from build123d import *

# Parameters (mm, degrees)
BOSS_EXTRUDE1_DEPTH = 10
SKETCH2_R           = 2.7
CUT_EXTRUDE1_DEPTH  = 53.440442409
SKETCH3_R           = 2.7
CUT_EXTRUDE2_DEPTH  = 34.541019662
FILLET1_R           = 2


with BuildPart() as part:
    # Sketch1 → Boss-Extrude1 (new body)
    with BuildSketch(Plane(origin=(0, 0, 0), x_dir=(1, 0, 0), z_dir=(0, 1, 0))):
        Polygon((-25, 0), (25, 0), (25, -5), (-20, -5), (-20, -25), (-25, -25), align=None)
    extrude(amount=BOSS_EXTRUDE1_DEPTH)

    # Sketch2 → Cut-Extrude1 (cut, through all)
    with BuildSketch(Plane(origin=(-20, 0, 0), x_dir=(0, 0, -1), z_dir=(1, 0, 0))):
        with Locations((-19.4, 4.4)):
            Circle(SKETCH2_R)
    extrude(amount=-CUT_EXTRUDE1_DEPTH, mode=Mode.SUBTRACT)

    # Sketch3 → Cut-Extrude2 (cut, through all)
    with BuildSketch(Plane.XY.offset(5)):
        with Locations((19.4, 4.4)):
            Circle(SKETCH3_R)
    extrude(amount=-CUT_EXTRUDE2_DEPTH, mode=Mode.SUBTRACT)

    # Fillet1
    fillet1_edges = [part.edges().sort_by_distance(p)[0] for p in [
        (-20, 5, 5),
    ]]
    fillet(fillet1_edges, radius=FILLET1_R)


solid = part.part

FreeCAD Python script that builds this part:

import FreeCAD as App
import Part
import Sketcher

V = App.Vector
Q = App.Units.Quantity


def edges_at(feature, points):
    """Names of the edges that pass closest to the given points."""
    edges = feature.Shape.Edges
    near = lambda p: min(range(len(edges)), key=lambda i: edges[i].distToShape(Part.Vertex(*p))[0])
    return sorted({f"Edge{near(p) + 1}" for p in points})

doc = App.newDocument("Part")
body = doc.addObject("PartDesign::Body", "Body")

# Sketch on XZ plane
sketch1 = body.newObject("Sketcher::SketchObject", "Sketch")
sketch1.AttachmentSupport = (doc.getObject("XZ_Plane"), [""])
sketch1.MapMode = "FlatFace"
sketch1.addGeometry(Part.LineSegment(V(25, 0, 0), V(-25, 0, 0)), False)
sketch1.addGeometry(Part.LineSegment(V(-25, 0, 0), V(-25, 25, 0)), False)
sketch1.addGeometry(Part.LineSegment(V(-25, 25, 0), V(-20, 25, 0)), False)
sketch1.addGeometry(Part.LineSegment(V(-20, 25, 0), V(-20, 5, 0)), False)
sketch1.addGeometry(Part.LineSegment(V(-20, 5, 0), V(25, 5, 0)), False)
sketch1.addGeometry(Part.LineSegment(V(25, 5, 0), V(25, 0, 0)), False)
sketch1.addConstraint(Sketcher.Constraint("Coincident", 0, 2, 1, 1))
sketch1.addConstraint(Sketcher.Constraint("Coincident", 1, 2, 2, 1))
sketch1.addConstraint(Sketcher.Constraint("Coincident", 2, 2, 3, 1))
sketch1.addConstraint(Sketcher.Constraint("Coincident", 3, 2, 4, 1))
sketch1.addConstraint(Sketcher.Constraint("Coincident", 4, 2, 5, 1))
sketch1.addConstraint(Sketcher.Constraint("Coincident", 5, 2, 0, 1))
sketch1.addConstraint(Sketcher.Constraint("Horizontal", 0))
sketch1.addConstraint(Sketcher.Constraint("Vertical", 1))
sketch1.addConstraint(Sketcher.Constraint("Horizontal", 2))
sketch1.addConstraint(Sketcher.Constraint("Vertical", 3))
sketch1.addConstraint(Sketcher.Constraint("Horizontal", 4))
sketch1.addConstraint(Sketcher.Constraint("Vertical", 5))
sketch1.addConstraint(Sketcher.Constraint("Symmetric", 0, 2, 5, 2, -1, 1))
sketch1.addConstraint(Sketcher.Constraint("Equal", 2, 5))
sketch1.addConstraint(Sketcher.Constraint("DistanceX", 0, 2, 0, 1, Q("50 mm")))
sketch1.addConstraint(Sketcher.Constraint("DistanceX", 2, 1, 2, 2, Q("5 mm")))
sketch1.addConstraint(Sketcher.Constraint("DistanceY", 1, 1, 1, 2, Q("25 mm")))
pad1 = body.newObject("PartDesign::Pad", "Pad")
pad1.Profile = sketch1
pad1.Length = 10
pad1.Reversed = True

# Sketch on YZ plane
sketch2 = body.newObject("Sketcher::SketchObject", "Sketch001")
sketch2.AttachmentSupport = (doc.getObject("YZ_Plane"), [""])
sketch2.MapMode = "FlatFace"
sketch2.AttachmentOffset = App.Placement(V(0, 0, -20), App.Rotation())
sketch2.addGeometry(Part.Circle(V(4.4, 19.4, 0), V(0, 0, 1), 2.7), False)
sketch2.addConstraint(Sketcher.Constraint("Diameter", 0, Q("5.4 mm")))
sketch2.addConstraint(Sketcher.Constraint("DistanceX", -1, 1, 0, 3, Q("4.4 mm")))
sketch2.addConstraint(Sketcher.Constraint("DistanceY", -1, 1, 0, 3, Q("19.4 mm")))
pocket1 = body.newObject("PartDesign::Pocket", "Pocket")
pocket1.Profile = sketch2
pocket1.Type = "ThroughAll"

# Sketch on XY plane
sketch3 = body.newObject("Sketcher::SketchObject", "Sketch002")
sketch3.AttachmentSupport = (doc.getObject("XY_Plane"), [""])
sketch3.MapMode = "FlatFace"
sketch3.AttachmentOffset = App.Placement(V(0, 0, 5), App.Rotation())
sketch3.addGeometry(Part.Circle(V(19.4, 4.4, 0), V(0, 0, 1), 2.7), False)
sketch3.addConstraint(Sketcher.Constraint("Diameter", 0, Q("5.4 mm")))
sketch3.addConstraint(Sketcher.Constraint("DistanceX", -1, 1, 0, 3, Q("19.4 mm")))
sketch3.addConstraint(Sketcher.Constraint("DistanceY", -1, 1, 0, 3, Q("4.4 mm")))
pocket2 = body.newObject("PartDesign::Pocket", "Pocket001")
pocket2.Profile = sketch3
pocket2.Type = "ThroughAll"
doc.recompute()

fillet = body.newObject("PartDesign::Fillet", "Fillet")
fillet.Base = (pocket2, edges_at(pocket2, [(-20, 5, 5)]))
fillet.Radius = 2

doc.recompute()
